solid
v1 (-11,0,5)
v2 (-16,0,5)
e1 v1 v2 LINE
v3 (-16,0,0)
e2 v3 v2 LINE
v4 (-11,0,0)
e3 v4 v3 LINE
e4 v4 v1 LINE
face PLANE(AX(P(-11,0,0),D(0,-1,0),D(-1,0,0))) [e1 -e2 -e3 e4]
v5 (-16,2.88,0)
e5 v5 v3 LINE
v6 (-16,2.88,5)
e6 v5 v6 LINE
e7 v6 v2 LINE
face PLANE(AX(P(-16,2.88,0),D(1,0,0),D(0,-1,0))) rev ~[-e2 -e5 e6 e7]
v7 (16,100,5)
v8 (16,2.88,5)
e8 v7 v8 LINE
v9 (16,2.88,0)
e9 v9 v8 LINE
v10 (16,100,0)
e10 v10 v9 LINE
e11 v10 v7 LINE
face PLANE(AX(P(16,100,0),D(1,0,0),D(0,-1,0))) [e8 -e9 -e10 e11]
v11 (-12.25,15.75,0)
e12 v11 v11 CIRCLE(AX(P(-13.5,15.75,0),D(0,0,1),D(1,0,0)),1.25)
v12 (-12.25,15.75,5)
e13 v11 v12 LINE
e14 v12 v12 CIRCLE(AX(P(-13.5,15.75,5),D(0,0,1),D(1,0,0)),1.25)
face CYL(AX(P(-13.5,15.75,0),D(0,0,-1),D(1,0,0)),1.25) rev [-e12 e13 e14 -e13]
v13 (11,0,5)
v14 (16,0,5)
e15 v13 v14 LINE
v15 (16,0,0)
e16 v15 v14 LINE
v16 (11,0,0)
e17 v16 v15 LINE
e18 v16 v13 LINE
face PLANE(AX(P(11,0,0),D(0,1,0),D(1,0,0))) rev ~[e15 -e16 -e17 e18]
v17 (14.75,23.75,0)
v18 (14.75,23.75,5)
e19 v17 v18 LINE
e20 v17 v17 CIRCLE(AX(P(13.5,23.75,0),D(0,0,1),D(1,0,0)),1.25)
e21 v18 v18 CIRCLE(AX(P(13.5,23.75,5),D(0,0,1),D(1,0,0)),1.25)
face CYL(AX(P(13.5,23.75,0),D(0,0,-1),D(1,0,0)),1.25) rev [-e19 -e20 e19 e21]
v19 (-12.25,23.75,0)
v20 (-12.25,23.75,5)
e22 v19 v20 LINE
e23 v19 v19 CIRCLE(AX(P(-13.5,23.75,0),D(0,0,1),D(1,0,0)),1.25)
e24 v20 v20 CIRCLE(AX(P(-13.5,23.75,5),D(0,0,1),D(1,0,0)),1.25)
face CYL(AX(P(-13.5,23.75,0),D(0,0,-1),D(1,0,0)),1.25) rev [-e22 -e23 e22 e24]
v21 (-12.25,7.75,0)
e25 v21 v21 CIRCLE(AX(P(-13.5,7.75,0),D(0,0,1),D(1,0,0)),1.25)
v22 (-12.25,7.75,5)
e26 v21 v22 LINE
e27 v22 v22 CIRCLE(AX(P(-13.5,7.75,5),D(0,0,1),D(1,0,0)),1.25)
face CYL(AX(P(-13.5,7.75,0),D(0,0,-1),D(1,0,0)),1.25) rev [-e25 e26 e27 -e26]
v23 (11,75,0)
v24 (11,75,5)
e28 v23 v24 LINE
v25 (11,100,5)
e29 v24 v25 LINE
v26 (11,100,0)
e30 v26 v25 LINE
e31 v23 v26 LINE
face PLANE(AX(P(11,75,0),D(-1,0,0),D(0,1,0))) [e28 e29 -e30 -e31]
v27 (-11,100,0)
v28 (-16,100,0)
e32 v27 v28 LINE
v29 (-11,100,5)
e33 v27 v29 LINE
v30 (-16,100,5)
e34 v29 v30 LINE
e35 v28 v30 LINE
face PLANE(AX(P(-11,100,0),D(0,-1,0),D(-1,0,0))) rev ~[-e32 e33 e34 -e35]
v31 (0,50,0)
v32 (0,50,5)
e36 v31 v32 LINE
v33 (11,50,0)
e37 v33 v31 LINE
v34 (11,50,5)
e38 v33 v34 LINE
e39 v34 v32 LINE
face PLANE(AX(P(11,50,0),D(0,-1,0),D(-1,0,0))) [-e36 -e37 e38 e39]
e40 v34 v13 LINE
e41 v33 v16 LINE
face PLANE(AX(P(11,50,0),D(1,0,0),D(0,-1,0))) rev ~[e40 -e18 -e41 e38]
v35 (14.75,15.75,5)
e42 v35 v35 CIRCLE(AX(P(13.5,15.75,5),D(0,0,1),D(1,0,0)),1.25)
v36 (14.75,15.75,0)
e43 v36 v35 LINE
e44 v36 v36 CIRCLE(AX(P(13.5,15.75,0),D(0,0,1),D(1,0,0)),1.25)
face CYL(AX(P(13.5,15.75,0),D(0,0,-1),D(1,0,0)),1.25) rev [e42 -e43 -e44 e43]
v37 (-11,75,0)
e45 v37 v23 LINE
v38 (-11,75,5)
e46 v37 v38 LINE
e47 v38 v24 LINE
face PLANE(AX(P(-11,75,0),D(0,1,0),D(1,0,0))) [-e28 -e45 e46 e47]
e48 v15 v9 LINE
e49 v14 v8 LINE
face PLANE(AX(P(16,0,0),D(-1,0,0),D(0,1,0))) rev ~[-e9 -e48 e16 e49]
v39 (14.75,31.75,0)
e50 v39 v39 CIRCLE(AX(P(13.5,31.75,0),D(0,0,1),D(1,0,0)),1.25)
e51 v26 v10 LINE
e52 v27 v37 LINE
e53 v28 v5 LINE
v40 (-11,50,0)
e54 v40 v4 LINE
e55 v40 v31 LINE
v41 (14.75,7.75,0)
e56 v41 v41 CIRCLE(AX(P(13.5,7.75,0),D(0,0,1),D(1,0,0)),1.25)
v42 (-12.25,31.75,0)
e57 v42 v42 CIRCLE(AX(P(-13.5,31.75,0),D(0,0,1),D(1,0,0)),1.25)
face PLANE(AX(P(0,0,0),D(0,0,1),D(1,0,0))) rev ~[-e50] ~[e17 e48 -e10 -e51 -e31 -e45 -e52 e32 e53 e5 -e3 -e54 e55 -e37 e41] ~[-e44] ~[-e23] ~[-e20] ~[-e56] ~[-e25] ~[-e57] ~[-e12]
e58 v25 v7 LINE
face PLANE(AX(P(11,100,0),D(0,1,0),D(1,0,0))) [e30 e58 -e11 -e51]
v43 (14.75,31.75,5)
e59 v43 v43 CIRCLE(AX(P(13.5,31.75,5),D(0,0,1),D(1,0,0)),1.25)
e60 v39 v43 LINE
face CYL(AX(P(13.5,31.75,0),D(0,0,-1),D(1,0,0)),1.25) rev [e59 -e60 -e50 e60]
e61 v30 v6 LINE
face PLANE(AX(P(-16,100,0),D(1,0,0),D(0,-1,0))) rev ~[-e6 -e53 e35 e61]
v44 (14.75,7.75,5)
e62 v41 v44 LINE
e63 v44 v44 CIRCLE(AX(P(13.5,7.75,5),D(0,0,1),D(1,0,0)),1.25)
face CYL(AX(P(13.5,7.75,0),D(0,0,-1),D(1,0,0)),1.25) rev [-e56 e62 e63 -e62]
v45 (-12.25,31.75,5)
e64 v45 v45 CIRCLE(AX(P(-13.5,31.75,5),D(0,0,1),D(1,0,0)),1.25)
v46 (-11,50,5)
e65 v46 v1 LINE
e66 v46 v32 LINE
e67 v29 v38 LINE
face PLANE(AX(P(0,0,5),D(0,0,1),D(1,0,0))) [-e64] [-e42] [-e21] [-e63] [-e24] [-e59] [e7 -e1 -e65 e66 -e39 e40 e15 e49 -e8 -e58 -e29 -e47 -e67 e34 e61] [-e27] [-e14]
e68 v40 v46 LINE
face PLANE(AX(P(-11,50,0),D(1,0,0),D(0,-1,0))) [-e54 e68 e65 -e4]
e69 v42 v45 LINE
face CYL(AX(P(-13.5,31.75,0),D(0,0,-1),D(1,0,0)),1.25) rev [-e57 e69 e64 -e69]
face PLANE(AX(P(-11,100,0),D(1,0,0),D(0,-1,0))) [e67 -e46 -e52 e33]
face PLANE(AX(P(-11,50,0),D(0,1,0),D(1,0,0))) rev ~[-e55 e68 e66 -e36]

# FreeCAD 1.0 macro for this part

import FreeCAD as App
import Part
import Sketcher

V = App.Vector

doc = App.newDocument("Part")
body = doc.addObject("PartDesign::Body", "Body")

sketch1 = doc.addObject("Sketcher::SketchObject", "Sketch")
body.addObject(sketch1)
sketch1.AttachmentSupport = (doc.XY_Plane, [""])
sketch1.MapMode = "FlatFace"
sketch1.addGeometry([
    Part.LineSegment(V(-11, 50, 0), V(11, 50, 0)),
    Part.LineSegment(V(11, 50, 0), V(11, 0, 0)),
    Part.LineSegment(V(11, 0, 0), V(16, 0, 0)),
    Part.LineSegment(V(16, 0, 0), V(16, 100, 0)),
    Part.LineSegment(V(16, 100, 0), V(11, 100, 0)),
    Part.LineSegment(V(11, 100, 0), V(11, 75, 0)),
    Part.LineSegment(V(11, 75, 0), V(-11, 75, 0)),
    Part.LineSegment(V(-11, 75, 0), V(-11, 100, 0)),
    Part.LineSegment(V(-11, 100, 0), V(-16, 100, 0)),
    Part.LineSegment(V(-16, 100, 0), V(-16, 0, 0)),
    Part.LineSegment(V(-16, 0, 0), V(-11, 0, 0)),
    Part.LineSegment(V(-11, 0, 0), V(-11, 50, 0)),
    Part.Circle(V(-13.5, 7.8, 0), V(0, 0, 1), 1.2),
    Part.Circle(V(-13.5, 15.8, 0), V(0, 0, 1), 1.2),
    Part.Circle(V(-13.5, 23.8, 0), V(0, 0, 1), 1.2),
    Part.Circle(V(-13.5, 31.8, 0), V(0, 0, 1), 1.2),
    Part.Circle(V(13.5, 7.8, 0), V(0, 0, 1), 1.2),
    Part.Circle(V(13.5, 15.8, 0), V(0, 0, 1), 1.2),
    Part.Circle(V(13.5, 23.8, 0), V(0, 0, 1), 1.2),
    Part.Circle(V(13.5, 31.8, 0), V(0, 0, 1), 1.2),
], False)
sketch1.addConstraint([
    Sketcher.Constraint("Coincident", 0, 2, 1, 1),
    Sketcher.Constraint("Coincident", 1, 2, 2, 1),
    Sketcher.Constraint("Coincident", 2, 2, 3, 1),
    Sketcher.Constraint("Coincident", 3, 2, 4, 1),
    Sketcher.Constraint("Coincident", 4, 2, 5, 1),
    Sketcher.Constraint("Coincident", 5, 2, 6, 1),
    Sketcher.Constraint("Coincident", 6, 2, 7, 1),
    Sketcher.Constraint("Coincident", 7, 2, 8, 1),
    Sketcher.Constraint("Coincident", 8, 2, 9, 1),
    Sketcher.Constraint("Coincident", 9, 2, 10, 1),
    Sketcher.Constraint("Coincident", 10, 2, 11, 1),
    Sketcher.Constraint("Coincident", 11, 2, 0, 1),
    Sketcher.Constraint("Horizontal", 0),
    Sketcher.Constraint("Vertical", 1),
    Sketcher.Constraint("Horizontal", 2),
    Sketcher.Constraint("Vertical", 3),
    Sketcher.Constraint("Horizontal", 4),
    Sketcher.Constraint("Vertical", 5),
    Sketcher.Constraint("Horizontal", 6),
    Sketcher.Constraint("Vertical", 7),
    Sketcher.Constraint("Horizontal", 8),
    Sketcher.Constraint("Vertical", 9),
    Sketcher.Constraint("Horizontal", 10),
    Sketcher.Constraint("Vertical", 11),
    Sketcher.Constraint("Equal", 12, 13),
    Sketcher.Constraint("Equal", 13, 14),
    Sketcher.Constraint("Equal", 14, 15),
    Sketcher.Constraint("Equal", 15, 16),
    Sketcher.Constraint("Equal", 16, 17),
    Sketcher.Constraint("Equal", 17, 18),
    Sketcher.Constraint("Equal", 18, 19),
    Sketcher.Constraint("Symmetric", 2, 2, 9, 2, -1, 1),
    Sketcher.Constraint("Symmetric", 12, 3, 16, 3, -2),
    Sketcher.Constraint("Symmetric", 13, 3, 17, 3, -2),
    Sketcher.Constraint("Symmetric", 14, 3, 18, 3, -2),
    Sketcher.Constraint("Symmetric", 15, 3, 19, 3, -2),
    Sketcher.Constraint("Symmetric", 4, 2, 7, 2, -2),
    Sketcher.Constraint("Symmetric", 1, 2, 10, 2, -2),
    Sketcher.Constraint("Vertical", 12, 3, 13, 3),
    Sketcher.Constraint("Vertical", 13, 3, 14, 3),
    Sketcher.Constraint("Vertical", 14, 3, 15, 3),
    Sketcher.Constraint("Vertical", 1, 2, 4, 2),
    Sketcher.Constraint("Diameter", 12, 2.5),
    Sketcher.Constraint("DistanceX", 2, 1, 2, 2, 5.0),
    Sketcher.Constraint("DistanceY", 1, 2, 1, 1, 50.0),
    Sketcher.Constraint("DistanceY", 3, 1, 3, 2, 100.0),
    Sketcher.Constraint("DistanceY", 5, 2, 5, 1, 25.0),
    Sketcher.Constraint("DistanceX", -1, 1, 0, 2, 11.0),
    Sketcher.Constraint("DistanceY", 12, 3, 13, 3, 8.0),
    Sketcher.Constraint("DistanceY", 13, 3, 14, 3, 8.0),
    Sketcher.Constraint("DistanceY", 14, 3, 15, 3, 8.0),
    Sketcher.Constraint("DistanceX", 0, 2, 19, 3, 2.5),
    Sketcher.Constraint("DistanceY", -1, 1, 12, 3, 7.75),
])
pad1 = doc.addObject("PartDesign::Pad", "Pad")
body.addObject(pad1)
pad1.Profile = sketch1
pad1.Length = 5

doc.recompute()
